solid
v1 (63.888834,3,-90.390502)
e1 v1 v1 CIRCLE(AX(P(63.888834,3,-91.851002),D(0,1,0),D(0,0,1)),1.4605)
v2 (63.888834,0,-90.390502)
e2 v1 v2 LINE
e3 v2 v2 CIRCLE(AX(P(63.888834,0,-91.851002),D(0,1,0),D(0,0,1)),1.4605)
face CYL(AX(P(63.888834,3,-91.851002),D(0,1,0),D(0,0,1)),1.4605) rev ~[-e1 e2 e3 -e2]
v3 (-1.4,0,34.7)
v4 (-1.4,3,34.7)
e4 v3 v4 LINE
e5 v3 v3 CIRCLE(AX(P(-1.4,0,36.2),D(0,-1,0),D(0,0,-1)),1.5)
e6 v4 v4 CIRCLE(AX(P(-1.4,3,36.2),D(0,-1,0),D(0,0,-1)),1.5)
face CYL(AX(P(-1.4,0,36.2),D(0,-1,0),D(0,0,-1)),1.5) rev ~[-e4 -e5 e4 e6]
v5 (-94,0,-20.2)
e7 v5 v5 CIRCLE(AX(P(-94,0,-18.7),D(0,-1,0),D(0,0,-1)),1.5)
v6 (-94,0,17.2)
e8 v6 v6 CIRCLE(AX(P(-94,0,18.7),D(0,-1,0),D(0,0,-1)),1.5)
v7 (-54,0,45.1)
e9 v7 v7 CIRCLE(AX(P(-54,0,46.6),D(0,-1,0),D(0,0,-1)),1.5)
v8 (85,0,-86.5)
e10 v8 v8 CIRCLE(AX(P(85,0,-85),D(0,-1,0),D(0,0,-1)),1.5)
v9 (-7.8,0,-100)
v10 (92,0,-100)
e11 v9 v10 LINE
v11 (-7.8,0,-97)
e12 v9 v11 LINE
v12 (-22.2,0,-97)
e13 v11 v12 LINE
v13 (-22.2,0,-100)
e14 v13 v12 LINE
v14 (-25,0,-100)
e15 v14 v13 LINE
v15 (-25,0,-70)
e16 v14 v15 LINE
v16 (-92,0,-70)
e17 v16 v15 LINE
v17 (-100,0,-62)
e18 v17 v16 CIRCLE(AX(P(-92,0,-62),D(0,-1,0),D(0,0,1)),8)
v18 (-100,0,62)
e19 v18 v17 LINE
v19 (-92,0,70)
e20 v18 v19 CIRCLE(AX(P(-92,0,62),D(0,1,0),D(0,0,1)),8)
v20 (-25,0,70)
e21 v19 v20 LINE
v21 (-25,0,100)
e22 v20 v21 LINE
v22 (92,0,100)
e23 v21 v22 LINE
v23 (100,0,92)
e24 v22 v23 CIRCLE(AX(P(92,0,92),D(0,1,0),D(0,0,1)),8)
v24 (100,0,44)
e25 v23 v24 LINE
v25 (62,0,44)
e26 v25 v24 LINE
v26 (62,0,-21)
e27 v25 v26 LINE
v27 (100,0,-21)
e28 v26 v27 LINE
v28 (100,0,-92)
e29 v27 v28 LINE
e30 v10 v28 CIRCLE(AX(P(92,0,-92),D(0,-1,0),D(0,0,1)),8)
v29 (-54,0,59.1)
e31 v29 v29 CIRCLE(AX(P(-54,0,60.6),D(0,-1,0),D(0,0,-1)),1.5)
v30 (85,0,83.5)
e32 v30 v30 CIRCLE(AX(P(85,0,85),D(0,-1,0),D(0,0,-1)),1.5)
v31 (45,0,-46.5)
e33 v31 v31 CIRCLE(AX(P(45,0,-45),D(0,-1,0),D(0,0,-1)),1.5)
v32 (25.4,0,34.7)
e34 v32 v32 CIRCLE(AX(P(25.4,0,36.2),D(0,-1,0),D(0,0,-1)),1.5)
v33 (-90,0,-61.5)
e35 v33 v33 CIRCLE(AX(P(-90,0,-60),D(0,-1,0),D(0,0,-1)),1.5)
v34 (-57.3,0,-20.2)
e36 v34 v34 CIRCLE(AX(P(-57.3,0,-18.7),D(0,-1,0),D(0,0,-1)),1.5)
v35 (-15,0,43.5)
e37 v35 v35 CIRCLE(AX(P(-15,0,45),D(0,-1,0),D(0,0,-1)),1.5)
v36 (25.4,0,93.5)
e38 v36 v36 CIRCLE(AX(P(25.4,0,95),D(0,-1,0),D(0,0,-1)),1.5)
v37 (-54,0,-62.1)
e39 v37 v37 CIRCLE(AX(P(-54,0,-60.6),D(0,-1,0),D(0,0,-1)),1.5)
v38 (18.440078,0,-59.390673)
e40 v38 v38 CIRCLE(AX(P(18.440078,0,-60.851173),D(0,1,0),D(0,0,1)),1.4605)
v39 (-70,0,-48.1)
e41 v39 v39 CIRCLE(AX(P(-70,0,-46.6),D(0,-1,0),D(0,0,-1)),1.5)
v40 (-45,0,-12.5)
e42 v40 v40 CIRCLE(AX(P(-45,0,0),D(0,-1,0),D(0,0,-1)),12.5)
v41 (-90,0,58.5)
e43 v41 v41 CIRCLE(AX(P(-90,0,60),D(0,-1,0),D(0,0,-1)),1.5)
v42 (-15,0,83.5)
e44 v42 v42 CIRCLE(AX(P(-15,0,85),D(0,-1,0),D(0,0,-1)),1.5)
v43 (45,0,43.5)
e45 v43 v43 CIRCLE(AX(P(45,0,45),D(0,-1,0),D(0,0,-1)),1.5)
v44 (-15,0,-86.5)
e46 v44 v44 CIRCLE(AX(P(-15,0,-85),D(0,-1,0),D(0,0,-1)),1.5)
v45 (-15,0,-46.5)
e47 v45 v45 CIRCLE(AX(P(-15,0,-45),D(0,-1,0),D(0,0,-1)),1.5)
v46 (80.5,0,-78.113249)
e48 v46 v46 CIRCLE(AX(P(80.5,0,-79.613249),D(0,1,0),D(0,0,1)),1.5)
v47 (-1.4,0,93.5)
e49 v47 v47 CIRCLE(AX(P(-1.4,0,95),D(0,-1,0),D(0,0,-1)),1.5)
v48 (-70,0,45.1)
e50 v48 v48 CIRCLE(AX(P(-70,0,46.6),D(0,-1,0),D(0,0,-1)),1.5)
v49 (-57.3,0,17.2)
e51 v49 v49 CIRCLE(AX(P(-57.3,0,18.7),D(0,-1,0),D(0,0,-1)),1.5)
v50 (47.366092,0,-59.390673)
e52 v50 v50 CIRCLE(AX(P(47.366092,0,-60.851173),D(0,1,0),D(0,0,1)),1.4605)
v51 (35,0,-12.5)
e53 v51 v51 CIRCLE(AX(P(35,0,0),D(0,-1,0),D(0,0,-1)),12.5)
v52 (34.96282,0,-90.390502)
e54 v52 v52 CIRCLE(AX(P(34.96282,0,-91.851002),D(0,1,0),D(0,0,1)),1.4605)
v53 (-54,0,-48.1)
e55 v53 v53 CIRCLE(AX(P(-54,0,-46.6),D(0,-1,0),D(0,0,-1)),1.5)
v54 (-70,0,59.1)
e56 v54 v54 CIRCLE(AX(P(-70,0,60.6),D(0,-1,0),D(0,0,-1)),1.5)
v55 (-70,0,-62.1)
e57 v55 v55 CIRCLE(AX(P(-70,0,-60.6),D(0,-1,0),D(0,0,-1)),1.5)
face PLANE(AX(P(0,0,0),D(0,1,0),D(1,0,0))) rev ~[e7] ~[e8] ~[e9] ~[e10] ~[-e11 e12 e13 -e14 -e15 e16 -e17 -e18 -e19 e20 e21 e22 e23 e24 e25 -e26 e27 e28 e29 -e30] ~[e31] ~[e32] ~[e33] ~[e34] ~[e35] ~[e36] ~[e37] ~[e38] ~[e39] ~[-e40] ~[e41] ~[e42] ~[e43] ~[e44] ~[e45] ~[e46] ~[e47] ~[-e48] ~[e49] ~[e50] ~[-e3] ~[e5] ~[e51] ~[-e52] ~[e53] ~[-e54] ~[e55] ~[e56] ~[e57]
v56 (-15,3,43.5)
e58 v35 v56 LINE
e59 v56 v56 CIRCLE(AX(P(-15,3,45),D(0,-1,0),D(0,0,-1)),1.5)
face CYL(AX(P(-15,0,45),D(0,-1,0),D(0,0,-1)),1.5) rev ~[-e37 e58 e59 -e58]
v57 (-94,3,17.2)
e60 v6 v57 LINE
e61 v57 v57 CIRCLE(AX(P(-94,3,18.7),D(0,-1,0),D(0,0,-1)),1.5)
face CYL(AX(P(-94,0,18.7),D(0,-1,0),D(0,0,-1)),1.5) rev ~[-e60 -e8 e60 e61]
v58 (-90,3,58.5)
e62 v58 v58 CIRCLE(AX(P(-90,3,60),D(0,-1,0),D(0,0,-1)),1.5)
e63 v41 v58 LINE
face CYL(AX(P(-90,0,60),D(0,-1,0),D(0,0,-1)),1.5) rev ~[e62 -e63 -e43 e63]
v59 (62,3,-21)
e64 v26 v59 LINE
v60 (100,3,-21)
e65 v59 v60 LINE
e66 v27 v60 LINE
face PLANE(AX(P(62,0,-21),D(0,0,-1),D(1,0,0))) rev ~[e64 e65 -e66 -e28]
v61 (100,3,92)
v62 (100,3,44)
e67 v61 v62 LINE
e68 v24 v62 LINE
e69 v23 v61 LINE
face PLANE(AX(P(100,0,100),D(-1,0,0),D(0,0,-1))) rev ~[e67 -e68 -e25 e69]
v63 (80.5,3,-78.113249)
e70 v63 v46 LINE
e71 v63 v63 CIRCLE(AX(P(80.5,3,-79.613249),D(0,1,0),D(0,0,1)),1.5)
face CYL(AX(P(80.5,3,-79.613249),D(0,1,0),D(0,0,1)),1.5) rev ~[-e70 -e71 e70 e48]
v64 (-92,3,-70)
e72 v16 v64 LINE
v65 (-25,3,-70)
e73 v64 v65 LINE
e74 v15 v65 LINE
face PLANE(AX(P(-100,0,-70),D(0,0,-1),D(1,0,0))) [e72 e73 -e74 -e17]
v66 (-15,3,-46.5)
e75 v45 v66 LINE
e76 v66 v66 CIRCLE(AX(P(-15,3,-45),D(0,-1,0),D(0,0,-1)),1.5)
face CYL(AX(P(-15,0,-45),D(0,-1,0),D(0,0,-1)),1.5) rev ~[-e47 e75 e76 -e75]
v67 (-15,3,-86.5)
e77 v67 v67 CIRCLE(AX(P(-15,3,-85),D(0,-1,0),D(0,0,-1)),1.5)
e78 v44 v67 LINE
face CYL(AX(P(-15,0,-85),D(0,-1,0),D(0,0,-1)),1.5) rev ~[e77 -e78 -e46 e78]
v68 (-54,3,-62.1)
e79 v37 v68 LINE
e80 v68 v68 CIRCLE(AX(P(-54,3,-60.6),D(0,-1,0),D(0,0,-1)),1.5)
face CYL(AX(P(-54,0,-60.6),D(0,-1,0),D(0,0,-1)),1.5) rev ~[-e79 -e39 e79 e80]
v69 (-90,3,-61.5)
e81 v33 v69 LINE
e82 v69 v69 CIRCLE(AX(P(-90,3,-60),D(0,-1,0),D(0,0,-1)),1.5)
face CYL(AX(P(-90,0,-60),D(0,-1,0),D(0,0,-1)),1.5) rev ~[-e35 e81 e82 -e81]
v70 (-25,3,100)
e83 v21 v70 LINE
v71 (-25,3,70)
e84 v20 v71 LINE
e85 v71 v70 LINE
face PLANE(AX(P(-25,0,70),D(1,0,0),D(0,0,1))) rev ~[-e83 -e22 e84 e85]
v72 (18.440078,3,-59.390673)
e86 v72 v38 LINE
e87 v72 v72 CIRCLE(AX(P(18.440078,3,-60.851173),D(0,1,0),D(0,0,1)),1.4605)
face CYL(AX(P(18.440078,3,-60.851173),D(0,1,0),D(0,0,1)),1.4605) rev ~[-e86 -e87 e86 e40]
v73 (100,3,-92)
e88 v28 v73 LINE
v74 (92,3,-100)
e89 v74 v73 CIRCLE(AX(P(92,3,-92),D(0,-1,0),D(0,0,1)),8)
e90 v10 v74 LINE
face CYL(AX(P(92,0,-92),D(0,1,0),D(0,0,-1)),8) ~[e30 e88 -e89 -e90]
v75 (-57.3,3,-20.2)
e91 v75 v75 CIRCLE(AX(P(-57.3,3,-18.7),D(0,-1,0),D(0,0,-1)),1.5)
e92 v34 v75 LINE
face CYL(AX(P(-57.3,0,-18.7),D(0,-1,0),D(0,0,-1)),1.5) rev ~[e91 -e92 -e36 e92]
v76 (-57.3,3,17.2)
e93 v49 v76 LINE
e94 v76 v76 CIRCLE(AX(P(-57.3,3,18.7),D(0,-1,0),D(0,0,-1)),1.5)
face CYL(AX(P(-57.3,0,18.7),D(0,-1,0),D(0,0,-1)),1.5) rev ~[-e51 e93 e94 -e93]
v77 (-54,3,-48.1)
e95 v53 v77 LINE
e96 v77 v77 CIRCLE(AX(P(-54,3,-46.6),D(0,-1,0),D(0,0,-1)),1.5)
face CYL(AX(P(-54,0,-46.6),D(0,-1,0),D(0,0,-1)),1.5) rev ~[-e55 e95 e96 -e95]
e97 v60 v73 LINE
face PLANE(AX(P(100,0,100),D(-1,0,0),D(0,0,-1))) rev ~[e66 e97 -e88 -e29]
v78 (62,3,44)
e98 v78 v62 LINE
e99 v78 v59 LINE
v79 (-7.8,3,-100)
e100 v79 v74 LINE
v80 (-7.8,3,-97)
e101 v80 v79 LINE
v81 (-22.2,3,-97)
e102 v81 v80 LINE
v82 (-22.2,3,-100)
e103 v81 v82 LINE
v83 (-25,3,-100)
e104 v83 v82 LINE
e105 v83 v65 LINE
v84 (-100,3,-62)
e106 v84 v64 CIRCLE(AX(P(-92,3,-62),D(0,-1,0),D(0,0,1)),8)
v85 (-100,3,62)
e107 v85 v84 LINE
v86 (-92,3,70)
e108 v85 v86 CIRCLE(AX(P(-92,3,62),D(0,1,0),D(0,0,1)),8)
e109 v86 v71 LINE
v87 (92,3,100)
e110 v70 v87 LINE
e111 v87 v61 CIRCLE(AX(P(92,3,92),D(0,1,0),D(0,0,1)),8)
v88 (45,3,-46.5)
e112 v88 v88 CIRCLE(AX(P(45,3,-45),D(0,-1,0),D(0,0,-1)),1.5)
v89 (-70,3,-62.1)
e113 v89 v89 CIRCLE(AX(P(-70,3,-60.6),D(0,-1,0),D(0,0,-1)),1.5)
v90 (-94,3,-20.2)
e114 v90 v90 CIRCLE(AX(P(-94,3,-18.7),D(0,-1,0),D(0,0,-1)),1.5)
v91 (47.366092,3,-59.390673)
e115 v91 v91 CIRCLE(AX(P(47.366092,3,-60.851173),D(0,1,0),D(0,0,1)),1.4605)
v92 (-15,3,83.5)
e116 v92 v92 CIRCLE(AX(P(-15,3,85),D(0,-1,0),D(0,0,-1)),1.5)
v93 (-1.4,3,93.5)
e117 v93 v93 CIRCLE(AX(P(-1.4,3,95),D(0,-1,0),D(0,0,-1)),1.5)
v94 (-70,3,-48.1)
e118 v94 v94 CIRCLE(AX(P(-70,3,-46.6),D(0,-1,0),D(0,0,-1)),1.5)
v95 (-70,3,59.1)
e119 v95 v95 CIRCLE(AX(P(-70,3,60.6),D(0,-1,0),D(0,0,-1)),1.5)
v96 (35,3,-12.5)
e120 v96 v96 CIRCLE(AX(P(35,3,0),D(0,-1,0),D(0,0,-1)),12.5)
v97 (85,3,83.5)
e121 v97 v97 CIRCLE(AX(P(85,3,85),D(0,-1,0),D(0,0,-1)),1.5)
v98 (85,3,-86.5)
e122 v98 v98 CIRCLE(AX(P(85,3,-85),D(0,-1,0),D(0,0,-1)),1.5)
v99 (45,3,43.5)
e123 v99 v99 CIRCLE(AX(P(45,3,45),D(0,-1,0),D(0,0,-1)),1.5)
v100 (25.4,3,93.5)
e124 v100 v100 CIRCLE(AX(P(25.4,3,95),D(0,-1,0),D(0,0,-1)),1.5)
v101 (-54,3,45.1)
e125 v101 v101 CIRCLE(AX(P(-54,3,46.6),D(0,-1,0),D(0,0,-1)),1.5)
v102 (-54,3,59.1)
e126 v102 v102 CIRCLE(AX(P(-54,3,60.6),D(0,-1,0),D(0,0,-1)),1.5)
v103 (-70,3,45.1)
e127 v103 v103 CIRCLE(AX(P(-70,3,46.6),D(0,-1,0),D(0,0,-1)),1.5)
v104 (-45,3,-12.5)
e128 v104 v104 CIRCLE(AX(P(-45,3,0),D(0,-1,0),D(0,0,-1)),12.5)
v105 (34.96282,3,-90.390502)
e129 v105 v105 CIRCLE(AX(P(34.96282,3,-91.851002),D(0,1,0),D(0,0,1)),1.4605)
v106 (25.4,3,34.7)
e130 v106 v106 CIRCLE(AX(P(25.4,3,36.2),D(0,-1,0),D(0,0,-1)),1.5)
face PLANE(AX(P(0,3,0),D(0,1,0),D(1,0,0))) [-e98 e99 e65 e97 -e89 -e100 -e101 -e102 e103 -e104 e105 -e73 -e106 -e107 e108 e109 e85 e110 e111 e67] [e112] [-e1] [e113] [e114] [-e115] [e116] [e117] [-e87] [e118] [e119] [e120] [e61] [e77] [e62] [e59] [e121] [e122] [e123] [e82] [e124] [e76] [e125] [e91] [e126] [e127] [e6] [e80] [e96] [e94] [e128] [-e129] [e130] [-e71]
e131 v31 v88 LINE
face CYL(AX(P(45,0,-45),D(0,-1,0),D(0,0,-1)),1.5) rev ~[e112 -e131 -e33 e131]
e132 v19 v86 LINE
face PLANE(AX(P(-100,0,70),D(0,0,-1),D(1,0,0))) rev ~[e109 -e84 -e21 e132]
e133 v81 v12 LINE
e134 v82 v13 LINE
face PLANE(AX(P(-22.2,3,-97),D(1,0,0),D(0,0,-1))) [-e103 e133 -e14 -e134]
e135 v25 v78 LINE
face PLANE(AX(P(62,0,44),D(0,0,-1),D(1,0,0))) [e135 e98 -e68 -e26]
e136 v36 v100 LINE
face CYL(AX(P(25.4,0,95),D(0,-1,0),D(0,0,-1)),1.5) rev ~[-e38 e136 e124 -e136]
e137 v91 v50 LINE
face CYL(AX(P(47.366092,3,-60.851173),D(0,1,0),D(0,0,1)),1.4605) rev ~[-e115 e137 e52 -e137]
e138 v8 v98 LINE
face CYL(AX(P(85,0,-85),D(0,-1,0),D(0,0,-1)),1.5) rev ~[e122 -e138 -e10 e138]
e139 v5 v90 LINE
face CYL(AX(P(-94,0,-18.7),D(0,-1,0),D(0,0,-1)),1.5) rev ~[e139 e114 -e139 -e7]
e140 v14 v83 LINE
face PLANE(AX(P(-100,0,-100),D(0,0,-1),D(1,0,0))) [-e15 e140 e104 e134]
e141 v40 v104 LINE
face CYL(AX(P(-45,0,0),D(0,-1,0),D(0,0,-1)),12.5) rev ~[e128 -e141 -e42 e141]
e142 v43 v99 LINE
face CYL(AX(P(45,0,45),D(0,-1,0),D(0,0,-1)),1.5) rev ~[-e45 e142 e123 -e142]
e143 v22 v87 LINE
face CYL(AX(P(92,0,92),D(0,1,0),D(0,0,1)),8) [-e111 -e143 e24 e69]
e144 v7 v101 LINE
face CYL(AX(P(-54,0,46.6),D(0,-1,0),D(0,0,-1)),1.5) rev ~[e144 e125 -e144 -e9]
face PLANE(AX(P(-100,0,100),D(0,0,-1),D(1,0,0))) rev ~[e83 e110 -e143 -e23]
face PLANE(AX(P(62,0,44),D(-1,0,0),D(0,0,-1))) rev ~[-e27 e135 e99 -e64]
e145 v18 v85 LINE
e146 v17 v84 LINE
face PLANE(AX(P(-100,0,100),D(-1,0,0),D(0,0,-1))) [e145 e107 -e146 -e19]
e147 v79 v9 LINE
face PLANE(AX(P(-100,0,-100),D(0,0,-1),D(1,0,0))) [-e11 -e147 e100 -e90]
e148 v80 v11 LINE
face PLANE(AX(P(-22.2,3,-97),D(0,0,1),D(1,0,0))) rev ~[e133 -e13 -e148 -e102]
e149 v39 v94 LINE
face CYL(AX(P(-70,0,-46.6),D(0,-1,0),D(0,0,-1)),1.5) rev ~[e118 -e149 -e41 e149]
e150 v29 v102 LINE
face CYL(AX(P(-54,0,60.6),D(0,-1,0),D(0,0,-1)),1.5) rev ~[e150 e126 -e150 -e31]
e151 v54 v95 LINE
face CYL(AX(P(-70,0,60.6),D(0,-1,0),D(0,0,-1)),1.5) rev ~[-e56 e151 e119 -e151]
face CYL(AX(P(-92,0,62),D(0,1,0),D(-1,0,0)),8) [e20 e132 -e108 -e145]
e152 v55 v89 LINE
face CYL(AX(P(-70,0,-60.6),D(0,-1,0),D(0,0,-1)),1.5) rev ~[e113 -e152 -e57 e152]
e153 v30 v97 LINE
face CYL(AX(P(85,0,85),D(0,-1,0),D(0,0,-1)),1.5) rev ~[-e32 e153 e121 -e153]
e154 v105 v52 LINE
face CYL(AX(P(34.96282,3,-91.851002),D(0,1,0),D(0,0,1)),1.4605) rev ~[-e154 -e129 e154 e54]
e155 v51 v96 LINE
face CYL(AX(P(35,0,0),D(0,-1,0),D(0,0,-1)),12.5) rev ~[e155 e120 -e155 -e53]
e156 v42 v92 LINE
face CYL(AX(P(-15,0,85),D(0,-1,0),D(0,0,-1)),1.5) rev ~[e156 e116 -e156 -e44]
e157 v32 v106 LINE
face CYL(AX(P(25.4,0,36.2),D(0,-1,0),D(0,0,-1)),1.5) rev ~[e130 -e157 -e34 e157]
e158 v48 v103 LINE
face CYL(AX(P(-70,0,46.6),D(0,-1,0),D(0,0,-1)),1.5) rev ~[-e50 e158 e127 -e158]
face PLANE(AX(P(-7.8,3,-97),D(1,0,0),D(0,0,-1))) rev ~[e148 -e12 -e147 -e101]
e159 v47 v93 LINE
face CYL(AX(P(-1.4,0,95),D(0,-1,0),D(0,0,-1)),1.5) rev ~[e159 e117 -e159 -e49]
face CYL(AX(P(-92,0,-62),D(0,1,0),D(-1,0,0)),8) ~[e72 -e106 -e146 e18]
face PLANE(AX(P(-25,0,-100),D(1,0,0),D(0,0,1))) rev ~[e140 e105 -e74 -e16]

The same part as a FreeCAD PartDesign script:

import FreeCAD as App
import Part
import Sketcher


def edges_at(feature, points):
    """Names of the edges that pass closest to the given points."""
    edges = feature.Shape.Edges
    near = lambda p: min(range(len(edges)), key=lambda i: edges[i].distToShape(Part.Vertex(*p))[0])
    return sorted({f"Edge{near(p) + 1}" for p in points})

doc = App.newDocument("Part")
body = doc.addObject("PartDesign::Body", "Body")

sketch1 = body.newObject("Sketcher::SketchObject", "Sketch")
sketch1.AttachmentSupport = (doc.getObject("XZ_Plane"), [""])
sketch1.MapMode = "FlatFace"
sketch1.addGeometry(Part.LineSegment(App.Vector(-100, -100, 0), App.Vector(-100, 100, 0)), False)
sketch1.addGeometry(Part.LineSegment(App.Vector(-100, 100, 0), App.Vector(100, 100, 0)), False)
sketch1.addGeometry(Part.LineSegment(App.Vector(100, 100, 0), App.Vector(100, -100, 0)), False)
sketch1.addGeometry(Part.LineSegment(App.Vector(100, -100, 0), App.Vector(-100, -100, 0)), False)
sketch1.addConstraint(Sketcher.Constraint("Coincident", 0, 2, 1, 1))
sketch1.addConstraint(Sketcher.Constraint("Coincident", 1, 2, 2, 1))
sketch1.addConstraint(Sketcher.Constraint("Coincident", 2, 2, 3, 1))
sketch1.addConstraint(Sketcher.Constraint("Coincident", 3, 2, 0, 1))
sketch1.addConstraint(Sketcher.Constraint("Vertical", 0))
sketch1.addConstraint(Sketcher.Constraint("Horizontal", 1))
sketch1.addConstraint(Sketcher.Constraint("Vertical", 2))
sketch1.addConstraint(Sketcher.Constraint("Horizontal", 3))
sketch1.addConstraint(Sketcher.Constraint("Symmetric", 0, 2, 2, 2, -1, 1))
sketch1.addConstraint(Sketcher.Constraint("Equal", 3, 0))
sketch1.addConstraint(Sketcher.Constraint("DistanceX", 1, 1, 1, 2, 200.0))
pad1 = body.newObject("PartDesign::Pad", "Pad")
pad1.Profile = sketch1
pad1.Length = 3
pad1.Reversed = True

sketch2 = body.newObject("Sketcher::SketchObject", "Sketch001")
sketch2.AttachmentSupport = (doc.getObject("XZ_Plane"), [""])
sketch2.MapMode = "FlatFace"
sketch2.addGeometry(Part.Circle(App.Vector(-15, 45, 0), App.Vector(0, 0, 1), 1.5), False)
sketch2.addConstraint(Sketcher.Constraint("Diameter", 0, 3.0))
sketch2.addConstraint(Sketcher.Constraint("DistanceX", 0, 3, -1, 1, 15.0))
sketch2.addConstraint(Sketcher.Constraint("DistanceY", -1, 1, 0, 3, 45.0))
pocket1 = body.newObject("PartDesign::Pocket", "Pocket")
pocket1.Profile = sketch2
pocket1.Type = "UpToFirst"

sketch3 = body.newObject("Sketcher::SketchObject", "Sketch002")
sketch3.AttachmentSupport = (doc.getObject("XZ_Plane"), [""])
sketch3.MapMode = "FlatFace"
sketch3.addGeometry(Part.Circle(App.Vector(45, 45, 0), App.Vector(0, 0, 1), 1.5), False)
sketch3.addConstraint(Sketcher.Constraint("Diameter", 0, 3.0))
sketch3.addConstraint(Sketcher.Constraint("DistanceX", -1, 1, 0, 3, 45.0))
sketch3.addConstraint(Sketcher.Constraint("DistanceY", -1, 1, 0, 3, 45.0))
pocket2 = body.newObject("PartDesign::Pocket", "Pocket001")
pocket2.Profile = sketch3
pocket2.Type = "UpToFirst"

sketch4 = body.newObject("Sketcher::SketchObject", "Sketch003")
sketch4.AttachmentSupport = (doc.getObject("XZ_Plane"), [""])
sketch4.MapMode = "FlatFace"
sketch4.addGeometry(Part.Circle(App.Vector(45, -45, 0), App.Vector(0, 0, 1), 1.5), False)
sketch4.addConstraint(Sketcher.Constraint("Diameter", 0, 3.0))
sketch4.addConstraint(Sketcher.Constraint("DistanceX", -1, 1, 0, 3, 45.0))
sketch4.addConstraint(Sketcher.Constraint("DistanceY", 0, 3, -1, 1, 45.0))
pocket3 = body.newObject("PartDesign::Pocket", "Pocket002")
pocket3.Profile = sketch4
pocket3.Type = "UpToFirst"

sketch5 = body.newObject("Sketcher::SketchObject", "Sketch004")
sketch5.AttachmentSupport = (doc.getObject("XZ_Plane"), [""])
sketch5.MapMode = "FlatFace"
sketch5.addGeometry(Part.Circle(App.Vector(-15, -45, 0), App.Vector(0, 0, 1), 1.5), False)
sketch5.addConstraint(Sketcher.Constraint("Diameter", 0, 3.0))
sketch5.addConstraint(Sketcher.Constraint("DistanceX", 0, 3, -1, 1, 15.0))
sketch5.addConstraint(Sketcher.Constraint("DistanceY", 0, 3, -1, 1, 45.0))
pocket4 = body.newObject("PartDesign::Pocket", "Pocket003")
pocket4.Profile = sketch5
pocket4.Type = "UpToFirst"

sketch6 = body.newObject("Sketcher::SketchObject", "Sketch005")
sketch6.AttachmentSupport = (doc.getObject("XZ_Plane"), [""])
sketch6.MapMode = "FlatFace"
sketch6.addGeometry(Part.LineSegment(App.Vector(-100, -70, 0), App.Vector(-100, -100, 0)), False)
sketch6.addGeometry(Part.LineSegment(App.Vector(-100, -100, 0), App.Vector(-25, -100, 0)), False)
sketch6.addGeometry(Part.LineSegment(App.Vector(-25, -100, 0), App.Vector(-25, -70, 0)), False)
sketch6.addGeometry(Part.LineSegment(App.Vector(-25, -70, 0), App.Vector(-100, -70, 0)), False)
sketch6.addConstraint(Sketcher.Constraint("Coincident", 0, 2, 1, 1))
sketch6.addConstraint(Sketcher.Constraint("Coincident", 1, 2, 2, 1))
sketch6.addConstraint(Sketcher.Constraint("Coincident", 2, 2, 3, 1))
sketch6.addConstraint(Sketcher.Constraint("Coincident", 3, 2, 0, 1))
sketch6.addConstraint(Sketcher.Constraint("Vertical", 0))
sketch6.addConstraint(Sketcher.Constraint("Horizontal", 1))
sketch6.addConstraint(Sketcher.Constraint("Vertical", 2))
sketch6.addConstraint(Sketcher.Constraint("Horizontal", 3))
sketch6.addConstraint(Sketcher.Constraint("DistanceX", 1, 1, 1, 2, 75.0))
sketch6.addConstraint(Sketcher.Constraint("DistanceY", 0, 2, 0, 1, 30.0))
sketch6.addConstraint(Sketcher.Constraint("DistanceX", 0, 2, -1, 1, 100.0))
sketch6.addConstraint(Sketcher.Constraint("DistanceY", 0, 2, -1, 1, 100.0))
pocket5 = body.newObject("PartDesign::Pocket", "Pocket004")
pocket5.Profile = sketch6
pocket5.Type = "UpToFirst"

sketch7 = body.newObject("Sketcher::SketchObject", "Sketch006")
sketch7.AttachmentSupport = (doc.getObject("XZ_Plane"), [""])
sketch7.MapMode = "FlatFace"
sketch7.addGeometry(Part.LineSegment(App.Vector(-100, 100, 0), App.Vector(-100, 70, 0)), False)
sketch7.addGeometry(Part.LineSegment(App.Vector(-100, 70, 0), App.Vector(-25, 70, 0)), False)
sketch7.addGeometry(Part.LineSegment(App.Vector(-25, 70, 0), App.Vector(-25, 100, 0)), False)
sketch7.addGeometry(Part.LineSegment(App.Vector(-25, 100, 0), App.Vector(-100, 100, 0)), False)
sketch7.addConstraint(Sketcher.Constraint("Coincident", 0, 2, 1, 1))
sketch7.addConstraint(Sketcher.Constraint("Coincident", 1, 2, 2, 1))
sketch7.addConstraint(Sketcher.Constraint("Coincident", 2, 2, 3, 1))
sketch7.addConstraint(Sketcher.Constraint("Coincident", 3, 2, 0, 1))
sketch7.addConstraint(Sketcher.Constraint("Vertical", 0))
sketch7.addConstraint(Sketcher.Constraint("Horizontal", 1))
sketch7.addConstraint(Sketcher.Constraint("Vertical", 2))
sketch7.addConstraint(Sketcher.Constraint("Horizontal", 3))
sketch7.addConstraint(Sketcher.Constraint("DistanceX", 1, 1, 1, 2, 75.0))
sketch7.addConstraint(Sketcher.Constraint("DistanceY", 0, 2, 0, 1, 30.0))
sketch7.addConstraint(Sketcher.Constraint("DistanceX", 0, 2, -1, 1, 100.0))
sketch7.addConstraint(Sketcher.Constraint("DistanceY", -1, 1, 0, 2, 70.0))
pocket6 = body.newObject("PartDesign::Pocket", "Pocket005")
pocket6.Profile = sketch7
pocket6.Type = "UpToFirst"

sketch8 = body.newObject("Sketcher::SketchObject", "Sketch007")
sketch8.AttachmentSupport = (doc.getObject("XZ_Plane"), [""])
sketch8.MapMode = "FlatFace"
sketch8.addGeometry(Part.LineSegment(App.Vector(-100, -70, 0), App.Vector(-100, -100, 0)), False)
sketch8.addGeometry(Part.LineSegment(App.Vector(-100, -100, 0), App.Vector(-25, -100, 0)), False)
sketch8.addGeometry(Part.LineSegment(App.Vector(-25, -100, 0), App.Vector(-25, -70, 0)), False)
sketch8.addGeometry(Part.LineSegment(App.Vector(-25, -70, 0), App.Vector(-100, -70, 0)), False)
sketch8.addGeometry(Part.LineSegment(App.Vector(-100, 100, 0), App.Vector(-100, 70, 0)), False)
sketch8.addGeometry(Part.LineSegment(App.Vector(-100, 70, 0), App.Vector(-25, 70, 0)), False)
sketch8.addGeometry(Part.LineSegment(App.Vector(-25, 70, 0), App.Vector(-25, 100, 0)), False)
sketch8.addGeometry(Part.LineSegment(App.Vector(-25, 100, 0), App.Vector(-100, 100, 0)), False)
sketch8.addConstraint(Sketcher.Constraint("Coincident", 0, 2, 1, 1))
sketch8.addConstraint(Sketcher.Constraint("Coincident", 1, 2, 2, 1))
sketch8.addConstraint(Sketcher.Constraint("Coincident", 2, 2, 3, 1))
sketch8.addConstraint(Sketcher.Constraint("Coincident", 3, 2, 0, 1))
sketch8.addConstraint(Sketcher.Constraint("Coincident", 4, 2, 5, 1))
sketch8.addConstraint(Sketcher.Constraint("Coincident", 5, 2, 6, 1))
sketch8.addConstraint(Sketcher.Constraint("Coincident", 6, 2, 7, 1))
sketch8.addConstraint(Sketcher.Constraint("Coincident", 7, 2, 4, 1))
sketch8.addConstraint(Sketcher.Constraint("Vertical", 0))
sketch8.addConstraint(Sketcher.Constraint("Horizontal", 1))
sketch8.addConstraint(Sketcher.Constraint("Vertical", 2))
sketch8.addConstraint(Sketcher.Constraint("Horizontal", 3))
sketch8.addConstraint(Sketcher.Constraint("Vertical", 4))
sketch8.addConstraint(Sketcher.Constraint("Horizontal", 5))
sketch8.addConstraint(Sketcher.Constraint("Vertical", 6))
sketch8.addConstraint(Sketcher.Constraint("Horizontal", 7))
sketch8.addConstraint(Sketcher.Constraint("Symmetric", 3, 2, 4, 2, -1))
sketch8.addConstraint(Sketcher.Constraint("Symmetric", 1, 2, 6, 2, -1))
sketch8.addConstraint(Sketcher.Constraint("DistanceX", 1, 1, 1, 2, 75.0))
sketch8.addConstraint(Sketcher.Constraint("DistanceY", 0, 2, 0, 1, 30.0))
sketch8.addConstraint(Sketcher.Constraint("DistanceX", 0, 2, -1, 1, 100.0))
sketch8.addConstraint(Sketcher.Constraint("DistanceY", 0, 2, -1, 1, 100.0))
pocket7 = body.newObject("PartDesign::Pocket", "Pocket006")
pocket7.Profile = sketch8
pocket7.Length = 142.453172
pocket7.Reversed = True

sketch9 = body.newObject("Sketcher::SketchObject", "Sketch008")
sketch9.AttachmentSupport = (doc.getObject("XZ_Plane"), [""])
sketch9.MapMode = "FlatFace"
sketch9.addGeometry(Part.Circle(App.Vector(-70, -60.6, 0), App.Vector(0, 0, 1), 1.5), False)
sketch9.addConstraint(Sketcher.Constraint("Diameter", 0, 3.0))
sketch9.addConstraint(Sketcher.Constraint("DistanceX", 0, 3, -1, 1, 70.0))
sketch9.addConstraint(Sketcher.Constraint("DistanceY", 0, 3, -1, 1, 60.6))
pocket8 = body.newObject("PartDesign::Pocket", "Pocket007")
pocket8.Profile = sketch9
pocket8.Type = "UpToFirst"

sketch10 = body.newObject("Sketcher::SketchObject", "Sketch009")
sketch10.AttachmentSupport = (doc.getObject("XZ_Plane"), [""])
sketch10.MapMode = "FlatFace"
sketch10.addGeometry(Part.Circle(App.Vector(-70, -46.6, 0), App.Vector(0, 0, 1), 1.5), False)
sketch10.addConstraint(Sketcher.Constraint("Diameter", 0, 3.0))
sketch10.addConstraint(Sketcher.Constraint("DistanceX", 0, 3, -1, 1, 70.0))
sketch10.addConstraint(Sketcher.Constraint("DistanceY", 0, 3, -1, 1, 46.6))
pocket9 = body.newObject("PartDesign::Pocket", "Pocket008")
pocket9.Profile = sketch10
pocket9.Type = "UpToFirst"

sketch11 = body.newObject("Sketcher::SketchObject", "Sketch010")
sketch11.AttachmentSupport = (doc.getObject("XZ_Plane"), [""])
sketch11.MapMode = "FlatFace"
sketch11.addGeometry(Part.Circle(App.Vector(-54, -46.6, 0), App.Vector(0, 0, 1), 1.5), False)
sketch11.addConstraint(Sketcher.Constraint("Diameter", 0, 3.0))
sketch11.addConstraint(Sketcher.Constraint("DistanceX", 0, 3, -1, 1, 54.0))
sketch11.addConstraint(Sketcher.Constraint("DistanceY", 0, 3, -1, 1, 46.6))
pocket10 = body.newObject("PartDesign::Pocket", "Pocket009")
pocket10.Profile = sketch11
pocket10.Type = "UpToFirst"

sketch12 = body.newObject("Sketcher::SketchObject", "Sketch011")
sketch12.AttachmentSupport = (doc.getObject("XZ_Plane"), [""])
sketch12.MapMode = "FlatFace"
sketch12.addGeometry(Part.Circle(App.Vector(-54, -60.6, 0), App.Vector(0, 0, 1), 1.5), False)
sketch12.addConstraint(Sketcher.Constraint("Diameter", 0, 3.0))
sketch12.addConstraint(Sketcher.Constraint("DistanceX", 0, 3, -1, 1, 54.0))
sketch12.addConstraint(Sketcher.Constraint("DistanceY", 0, 3, -1, 1, 60.6))
pocket11 = body.newObject("PartDesign::Pocket", "Pocket010")
pocket11.Profile = sketch12
pocket11.Type = "UpToFirst"

sketch13 = body.newObject("Sketcher::SketchObject", "Sketch012")
sketch13.AttachmentSupport = (doc.getObject("XZ_Plane"), [""])
sketch13.MapMode = "FlatFace"
sketch13.addGeometry(Part.Circle(App.Vector(-70, 60.6, 0), App.Vector(0, 0, 1), 1.5), False)
sketch13.addConstraint(Sketcher.Constraint("Diameter", 0, 3.0))
sketch13.addConstraint(Sketcher.Constraint("DistanceX", 0, 3, -1, 1, 70.0))
sketch13.addConstraint(Sketcher.Constraint("DistanceY", -1, 1, 0, 3, 60.6))
pocket12 = body.newObject("PartDesign::Pocket", "Pocket011")
pocket12.Profile = sketch13
pocket12.Type = "UpToFirst"

sketch14 = body.newObject("Sketcher::SketchObject", "Sketch013")
sketch14.AttachmentSupport = (doc.getObject("XZ_Plane"), [""])
sketch14.MapMode = "FlatFace"
sketch14.addGeometry(Part.Circle(App.Vector(-54, 60.6, 0), App.Vector(0, 0, 1), 1.5), False)
sketch14.addConstraint(Sketcher.Constraint("Diameter", 0, 3.0))
sketch14.addConstraint(Sketcher.Constraint("DistanceX", 0, 3, -1, 1, 54.0))
sketch14.addConstraint(Sketcher.Constraint("DistanceY", -1, 1, 0, 3, 60.6))
pocket13 = body.newObject("PartDesign::Pocket", "Pocket012")
pocket13.Profile = sketch14
pocket13.Type = "UpToFirst"

sketch15 = body.newObject("Sketcher::SketchObject", "Sketch014")
sketch15.AttachmentSupport = (doc.getObject("XZ_Plane"), [""])
sketch15.MapMode = "FlatFace"
sketch15.addGeometry(Part.Circle(App.Vector(-70, 46.6, 0), App.Vector(0, 0, 1), 1.5), False)
sketch15.addConstraint(Sketcher.Constraint("Diameter", 0, 3.0))
sketch15.addConstraint(Sketcher.Constraint("DistanceX", 0, 3, -1, 1, 70.0))
sketch15.addConstraint(Sketcher.Constraint("DistanceY", -1, 1, 0, 3, 46.6))
pocket14 = body.newObject("PartDesign::Pocket", "Pocket013")
pocket14.Profile = sketch15
pocket14.Type = "UpToFirst"

sketch16 = body.newObject("Sketcher::SketchObject", "Sketch015")
sketch16.AttachmentSupport = (doc.getObject("XZ_Plane"), [""])
sketch16.MapMode = "FlatFace"
sketch16.addGeometry(Part.Circle(App.Vector(-54, 46.6, 0), App.Vector(0, 0, 1), 1.5), False)
sketch16.addConstraint(Sketcher.Constraint("Diameter", 0, 3.0))
sketch16.addConstraint(Sketcher.Constraint("DistanceX", 0, 3, -1, 1, 54.0))
sketch16.addConstraint(Sketcher.Constraint("DistanceY", -1, 1, 0, 3, 46.6))
pocket15 = body.newObject("PartDesign::Pocket", "Pocket014")
pocket15.Profile = sketch16
pocket15.Type = "UpToFirst"
doc.recompute()

fillet = body.newObject("PartDesign::Fillet", "Fillet")
fillet.Base = (pocket15, edges_at(pocket15, [
    (-100, 1.5, -70),
    (-100, 1.5, 70),
    (100, 1.5, 100),
    (100, 1.5, -100),
]))
fillet.Radius = 8

sketch17 = body.newObject("Sketcher::SketchObject", "Sketch016")
sketch17.AttachmentSupport = (doc.getObject("XZ_Plane"), [""])
sketch17.MapMode = "FlatFace"
sketch17.addGeometry(Part.Circle(App.Vector(-90, 60, 0), App.Vector(0, 0, 1), 1.5), False)
sketch17.addConstraint(Sketcher.Constraint("Diameter", 0, 3.0))
sketch17.addConstraint(Sketcher.Constraint("DistanceX", 0, 3, -1, 1, 90.0))
sketch17.addConstraint(Sketcher.Constraint("DistanceY", -1, 1, 0, 3, 60.0))
pocket16 = body.newObject("PartDesign::Pocket", "Pocket015")
pocket16.Profile = sketch17
pocket16.Type = "UpToFirst"

sketch18 = body.newObject("Sketcher::SketchObject", "Sketch017")
sketch18.AttachmentSupport = (doc.getObject("XZ_Plane"), [""])
sketch18.MapMode = "FlatFace"
sketch18.addGeometry(Part.Circle(App.Vector(-90, -60, 0), App.Vector(0, 0, 1), 1.5), False)
sketch18.addConstraint(Sketcher.Constraint("Diameter", 0, 3.0))
sketch18.addConstraint(Sketcher.Constraint("DistanceX", 0, 3, -1, 1, 90.0))
sketch18.addConstraint(Sketcher.Constraint("DistanceY", 0, 3, -1, 1, 60.0))
pocket17 = body.newObject("PartDesign::Pocket", "Pocket016")
pocket17.Profile = sketch18
pocket17.Type = "UpToFirst"

sketch19 = body.newObject("Sketcher::SketchObject", "Sketch018")
sketch19.AttachmentSupport = (doc.getObject("XZ_Plane"), [""])
sketch19.MapMode = "FlatFace"
sketch19.addGeometry(Part.Circle(App.Vector(-15, -85, 0), App.Vector(0, 0, 1), 1.5), False)
sketch19.addConstraint(Sketcher.Constraint("Diameter", 0, 3.0))
sketch19.addConstraint(Sketcher.Constraint("DistanceX", 0, 3, -1, 1, 15.0))
sketch19.addConstraint(Sketcher.Constraint("DistanceY", 0, 3, -1, 1, 85.0))
pocket18 = body.newObject("PartDesign::Pocket", "Pocket017")
pocket18.Profile = sketch19
pocket18.Type = "UpToFirst"

sketch20 = body.newObject("Sketcher::SketchObject", "Sketch019")
sketch20.AttachmentSupport = (doc.getObject("XZ_Plane"), [""])
sketch20.MapMode = "FlatFace"
sketch20.addGeometry(Part.Circle(App.Vector(85, -85, 0), App.Vector(0, 0, 1), 1.5), False)
sketch20.addConstraint(Sketcher.Constraint("Diameter", 0, 3.0))
sketch20.addConstraint(Sketcher.Constraint("DistanceX", -1, 1, 0, 3, 85.0))
sketch20.addConstraint(Sketcher.Constraint("DistanceY", 0, 3, -1, 1, 85.0))
pocket19 = body.newObject("PartDesign::Pocket", "Pocket018")
pocket19.Profile = sketch20
pocket19.Type = "UpToFirst"

sketch21 = body.newObject("Sketcher::SketchObject", "Sketch020")
sketch21.AttachmentSupport = (doc.getObject("XZ_Plane"), [""])
sketch21.MapMode = "FlatFace"
sketch21.addGeometry(Part.Circle(App.Vector(85, 85, 0), App.Vector(0, 0, 1), 1.5), False)
sketch21.addConstraint(Sketcher.Constraint("Diameter", 0, 3.0))
sketch21.addConstraint(Sketcher.Constraint("DistanceX", -1, 1, 0, 3, 85.0))
sketch21.addConstraint(Sketcher.Constraint("DistanceY", -1, 1, 0, 3, 85.0))
pocket20 = body.newObject("PartDesign::Pocket", "Pocket019")
pocket20.Profile = sketch21
pocket20.Type = "UpToFirst"

sketch22 = body.newObject("Sketcher::SketchObject", "Sketch021")
sketch22.AttachmentSupport = (doc.getObject("XZ_Plane"), [""])
sketch22.MapMode = "FlatFace"
sketch22.addGeometry(Part.Circle(App.Vector(-15, 85, 0), App.Vector(0, 0, 1), 1.5), False)
sketch22.addConstraint(Sketcher.Constraint("Diameter", 0, 3.0))
sketch22.addConstraint(Sketcher.Constraint("DistanceX", 0, 3, -1, 1, 15.0))
sketch22.addConstraint(Sketcher.Constraint("DistanceY", -1, 1, 0, 3, 85.0))
pocket21 = body.newObject("PartDesign::Pocket", "Pocket020")
pocket21.Profile = sketch22
pocket21.Type = "UpToFirst"

sketch23 = body.newObject("Sketcher::SketchObject", "Sketch022")
sketch23.AttachmentSupport = (doc.getObject("XZ_Plane"), [""])
sketch23.MapMode = "FlatFace"
sketch23.addGeometry(Part.LineSegment(App.Vector(62, -21, 0), App.Vector(62, 44, 0)), False)
sketch23.addGeometry(Part.LineSegment(App.Vector(62, 44, 0), App.Vector(100, 44, 0)), False)
sketch23.addGeometry(Part.LineSegment(App.Vector(100, 44, 0), App.Vector(100, -21, 0)), False)
sketch23.addGeometry(Part.LineSegment(App.Vector(100, -21, 0), App.Vector(62, -21, 0)), False)
sketch23.addConstraint(Sketcher.Constraint("Coincident", 0, 2, 1, 1))
sketch23.addConstraint(Sketcher.Constraint("Coincident", 1, 2, 2, 1))
sketch23.addConstraint(Sketcher.Constraint("Coincident", 2, 2, 3, 1))
sketch23.addConstraint(Sketcher.Constraint("Coincident", 3, 2, 0, 1))
sketch23.addConstraint(Sketcher.Constraint("Vertical", 0))
sketch23.addConstraint(Sketcher.Constraint("Horizontal", 1))
sketch23.addConstraint(Sketcher.Constraint("Vertical", 2))
sketch23.addConstraint(Sketcher.Constraint("Horizontal", 3))
sketch23.addConstraint(Sketcher.Constraint("DistanceX", 1, 1, 1, 2, 38.0))
sketch23.addConstraint(Sketcher.Constraint("DistanceY", 0, 1, 0, 2, 65.0))
sketch23.addConstraint(Sketcher.Constraint("DistanceX", -1, 1, 0, 2, 62.0))
sketch23.addConstraint(Sketcher.Constraint("DistanceY", -1, 1, 0, 2, 44.0))
pocket22 = body.newObject("PartDesign::Pocket", "Pocket021")
pocket22.Profile = sketch23
pocket22.Type = "UpToFirst"

sketch24 = body.newObject("Sketcher::SketchObject", "Sketch023")
sketch24.AttachmentSupport = (doc.getObject("XZ_Plane"), [""])
sketch24.MapMode = "FlatFace"
sketch24.addGeometry(Part.Circle(App.Vector(35, 0, 0), App.Vector(0, 0, 1), 12.5), False)
sketch24.addConstraint(Sketcher.Constraint("PointOnObject", 0, 3, -1))
sketch24.addConstraint(Sketcher.Constraint("Diameter", 0, 25.0))
sketch24.addConstraint(Sketcher.Constraint("DistanceX", -1, 1, 0, 3, 35.0))
pocket23 = body.newObject("PartDesign::Pocket", "Pocket022")
pocket23.Profile = sketch24
pocket23.Type = "UpToFirst"

sketch25 = body.newObject("Sketcher::SketchObject", "Sketch024")
sketch25.AttachmentSupport = (doc.getObject("XZ_Plane"), [""])
sketch25.MapMode = "FlatFace"
sketch25.addGeometry(Part.Circle(App.Vector(-45, 0, 0), App.Vector(0, 0, 1), 12.5), False)
sketch25.addConstraint(Sketcher.Constraint("PointOnObject", 0, 3, -1))
sketch25.addConstraint(Sketcher.Constraint("Diameter", 0, 25.0))
sketch25.addConstraint(Sketcher.Constraint("DistanceX", 0, 3, -1, 1, 45.0))
pocket24 = body.newObject("PartDesign::Pocket", "Pocket023")
pocket24.Profile = sketch25
pocket24.Type = "UpToFirst"

sketch26 = body.newObject("Sketcher::SketchObject", "Sketch025")
sketch26.AttachmentSupport = (doc.getObject("XZ_Plane"), [""])
sketch26.MapMode = "FlatFace"
sketch26.addGeometry(Part.Circle(App.Vector(-94, -18.7, 0), App.Vector(0, 0, 1), 1.5), False)
sketch26.addConstraint(Sketcher.Constraint("Diameter", 0, 3.0))
sketch26.addConstraint(Sketcher.Constraint("DistanceX", 0, 3, -1, 1, 94.0))
sketch26.addConstraint(Sketcher.Constraint("DistanceY", 0, 3, -1, 1, 18.7))
pocket25 = body.newObject("PartDesign::Pocket", "Pocket024")
pocket25.Profile = sketch26
pocket25.Type = "UpToFirst"

sketch27 = body.newObject("Sketcher::SketchObject", "Sketch026")
sketch27.AttachmentSupport = (doc.getObject("XZ_Plane"), [""])
sketch27.MapMode = "FlatFace"
sketch27.addGeometry(Part.Circle(App.Vector(-94, 18.7, 0), App.Vector(0, 0, 1), 1.5), False)
sketch27.addConstraint(Sketcher.Constraint("Diameter", 0, 3.0))
sketch27.addConstraint(Sketcher.Constraint("DistanceX", 0, 3, -1, 1, 94.0))
sketch27.addConstraint(Sketcher.Constraint("DistanceY", -1, 1, 0, 3, 18.7))
pocket26 = body.newObject("PartDesign::Pocket", "Pocket025")
pocket26.Profile = sketch27
pocket26.Type = "UpToFirst"

sketch28 = body.newObject("Sketcher::SketchObject", "Sketch027")
sketch28.AttachmentSupport = (doc.getObject("XZ_Plane"), [""])
sketch28.MapMode = "FlatFace"
sketch28.addGeometry(Part.Circle(App.Vector(-57.3, 18.7, 0), App.Vector(0, 0, 1), 1.5), False)
sketch28.addConstraint(Sketcher.Constraint("Diameter", 0, 3.0))
sketch28.addConstraint(Sketcher.Constraint("DistanceX", 0, 3, -1, 1, 57.3))
sketch28.addConstraint(Sketcher.Constraint("DistanceY", -1, 1, 0, 3, 18.7))
pocket27 = body.newObject("PartDesign::Pocket", "Pocket026")
pocket27.Profile = sketch28
pocket27.Type = "UpToFirst"

sketch29 = body.newObject("Sketcher::SketchObject", "Sketch028")
sketch29.AttachmentSupport = (doc.getObject("XZ_Plane"), [""])
sketch29.MapMode = "FlatFace"
sketch29.addGeometry(Part.Circle(App.Vector(-57.3, -18.7, 0), App.Vector(0, 0, 1), 1.5), False)
sketch29.addConstraint(Sketcher.Constraint("Diameter", 0, 3.0))
sketch29.addConstraint(Sketcher.Constraint("DistanceX", 0, 3, -1, 1, 57.3))
sketch29.addConstraint(Sketcher.Constraint("DistanceY", 0, 3, -1, 1, 18.7))
pocket28 = body.newObject("PartDesign::Pocket", "Pocket027")
pocket28.Profile = sketch29
pocket28.Type = "UpToFirst"

sketch30 = body.newObject("Sketcher::SketchObject", "Sketch029")
sketch30.AttachmentSupport = (doc.getObject("XZ_Plane"), [""])
sketch30.MapMode = "FlatFace"
sketch30.addGeometry(Part.Circle(App.Vector(-1.4, 95, 0), App.Vector(0, 0, 1), 1.5), False)
sketch30.addConstraint(Sketcher.Constraint("Diameter", 0, 3.0))
sketch30.addConstraint(Sketcher.Constraint("DistanceY", -1, 1, 0, 3, 95.0))
sketch30.addConstraint(Sketcher.Constraint("DistanceX", 0, 3, -1, 1, 1.4))
pocket29 = body.newObject("PartDesign::Pocket", "Pocket028")
pocket29.Profile = sketch30
pocket29.Type = "UpToFirst"

sketch31 = body.newObject("Sketcher::SketchObject", "Sketch030")
sketch31.AttachmentSupport = (doc.getObject("XZ_Plane"), [""])
sketch31.MapMode = "FlatFace"
sketch31.addGeometry(Part.Circle(App.Vector(25.4, 95, 0), App.Vector(0, 0, 1), 1.5), False)
sketch31.addConstraint(Sketcher.Constraint("Diameter", 0, 3.0))
sketch31.addConstraint(Sketcher.Constraint("DistanceY", -1, 1, 0, 3, 95.0))
sketch31.addConstraint(Sketcher.Constraint("DistanceX", -1, 1, 0, 3, 25.4))
pocket30 = body.newObject("PartDesign::Pocket", "Pocket029")
pocket30.Profile = sketch31
pocket30.Type = "UpToFirst"

sketch32 = body.newObject("Sketcher::SketchObject", "Sketch031")
sketch32.AttachmentSupport = (doc.getObject("XZ_Plane"), [""])
sketch32.MapMode = "FlatFace"
sketch32.addGeometry(Part.Circle(App.Vector(25.4, 36.2, 0), App.Vector(0, 0, 1), 1.5), False)
sketch32.addConstraint(Sketcher.Constraint("Diameter", 0, 3.0))
sketch32.addConstraint(Sketcher.Constraint("DistanceX", -1, 1, 0, 3, 25.4))
sketch32.addConstraint(Sketcher.Constraint("DistanceY", -1, 1, 0, 3, 36.2))
pocket31 = body.newObject("PartDesign::Pocket", "Pocket030")
pocket31.Profile = sketch32
pocket31.Type = "UpToFirst"

sketch33 = body.newObject("Sketcher::SketchObject", "Sketch032")
sketch33.AttachmentSupport = (doc.getObject("XZ_Plane"), [""])
sketch33.MapMode = "FlatFace"
sketch33.addGeometry(Part.Circle(App.Vector(-1.4, 36.2, 0), App.Vector(0, 0, 1), 1.5), False)
sketch33.addConstraint(Sketcher.Constraint("Diameter", 0, 3.0))
sketch33.addConstraint(Sketcher.Constraint("DistanceX", 0, 3, -1, 1, 1.4))
sketch33.addConstraint(Sketcher.Constraint("DistanceY", -1, 1, 0, 3, 36.2))
pocket32 = body.newObject("PartDesign::Pocket", "Pocket031")
pocket32.Profile = sketch33
pocket32.Type = "UpToFirst"

sketch34 = body.newObject("Sketcher::SketchObject", "Sketch033")
sketch34.AttachmentSupport = (doc.getObject("XZ_Plane"), [""])
sketch34.MapMode = "FlatFace"
sketch34.AttachmentOffset = App.Placement(App.Vector(0, 0, -3), App.Rotation())
sketch34.addGeometry(Part.Circle(App.Vector(63.888834, -91.851002, 0), App.Vector(0, 0, 1), 1.4605), False)
sketch34.addConstraint(Sketcher.Constraint("Diameter", 0, 2.921))
sketch34.addConstraint(Sketcher.Constraint("DistanceX", -1, 1, 0, 3, 63.888834))
sketch34.addConstraint(Sketcher.Constraint("DistanceY", 0, 3, -1, 1, 91.851002))
pocket33 = body.newObject("PartDesign::Pocket", "Pocket032")
pocket33.Profile = sketch34
pocket33.Type = "UpToFirst"
pocket33.Reversed = True

sketch35 = body.newObject("Sketcher::SketchObject", "Sketch034")
sketch35.AttachmentSupport = (doc.getObject("XZ_Plane"), [""])
sketch35.MapMode = "FlatFace"
sketch35.AttachmentOffset = App.Placement(App.Vector(0, 0, -3), App.Rotation())
sketch35.addGeometry(Part.Circle(App.Vector(47.366092, -60.851173, 0), App.Vector(0, 0, 1), 1.4605), False)
sketch35.addConstraint(Sketcher.Constraint("Diameter", 0, 2.921))
sketch35.addConstraint(Sketcher.Constraint("DistanceX", -1, 1, 0, 3, 47.366092))
sketch35.addConstraint(Sketcher.Constraint("DistanceY", 0, 3, -1, 1, 60.851173))
pocket34 = body.newObject("PartDesign::Pocket", "Pocket033")
pocket34.Profile = sketch35
pocket34.Type = "UpToFirst"
pocket34.Reversed = True

sketch36 = body.newObject("Sketcher::SketchObject", "Sketch035")
sketch36.AttachmentSupport = (doc.getObject("XZ_Plane"), [""])
sketch36.MapMode = "FlatFace"
sketch36.AttachmentOffset = App.Placement(App.Vector(0, 0, -3), App.Rotation())
sketch36.addGeometry(Part.Circle(App.Vector(34.96282, -91.851002, 0), App.Vector(0, 0, 1), 1.4605), False)
sketch36.addConstraint(Sketcher.Constraint("Diameter", 0, 2.921))
sketch36.addConstraint(Sketcher.Constraint("DistanceX", -1, 1, 0, 3, 34.96282))
sketch36.addConstraint(Sketcher.Constraint("DistanceY", 0, 3, -1, 1, 91.851002))
pocket35 = body.newObject("PartDesign::Pocket", "Pocket034")
pocket35.Profile = sketch36
pocket35.Type = "UpToFirst"
pocket35.Reversed = True

sketch37 = body.newObject("Sketcher::SketchObject", "Sketch036")
sketch37.AttachmentSupport = (doc.getObject("XZ_Plane"), [""])
sketch37.MapMode = "FlatFace"
sketch37.AttachmentOffset = App.Placement(App.Vector(0, 0, -3), App.Rotation())
sketch37.addGeometry(Part.Circle(App.Vector(18.440078, -60.851173, 0), App.Vector(0, 0, 1), 1.4605), False)
sketch37.addConstraint(Sketcher.Constraint("Diameter", 0, 2.921))
sketch37.addConstraint(Sketcher.Constraint("DistanceX", -1, 1, 0, 3, 18.440078))
sketch37.addConstraint(Sketcher.Constraint("DistanceY", 0, 3, -1, 1, 60.851173))
pocket36 = body.newObject("PartDesign::Pocket", "Pocket035")
pocket36.Profile = sketch37
pocket36.Type = "UpToFirst"
pocket36.Reversed = True

sketch38 = body.newObject("Sketcher::SketchObject", "Sketch037")
sketch38.AttachmentSupport = (doc.getObject("XZ_Plane"), [""])
sketch38.MapMode = "FlatFace"
sketch38.AttachmentOffset = App.Placement(App.Vector(0, 0, -3), App.Rotation())
sketch38.addGeometry(Part.Circle(App.Vector(80.5, -79.613249, 0), App.Vector(0, 0, 1), 1.5), False)
sketch38.addConstraint(Sketcher.Constraint("Diameter", 0, 3.0))
sketch38.addConstraint(Sketcher.Constraint("DistanceX", -1, 1, 0, 3, 80.5))
sketch38.addConstraint(Sketcher.Constraint("DistanceY", 0, 3, -1, 1, 79.613249))
pocket37 = body.newObject("PartDesign::Pocket", "Pocket036")
pocket37.Profile = sketch38
pocket37.Type = "UpToFirst"
pocket37.Reversed = True

sketch39 = body.newObject("Sketcher::SketchObject", "Sketch038")
sketch39.AttachmentSupport = (doc.getObject("XZ_Plane"), [""])
sketch39.MapMode = "FlatFace"
sketch39.AttachmentOffset = App.Placement(App.Vector(0, 0, -3), App.Rotation())
sketch39.addGeometry(Part.LineSegment(App.Vector(-22.2, -100, 0), App.Vector(-22.2, -97, 0)), False)
sketch39.addGeometry(Part.LineSegment(App.Vector(-22.2, -97, 0), App.Vector(-7.8, -97, 0)), False)
sketch39.addGeometry(Part.LineSegment(App.Vector(-7.8, -97, 0), App.Vector(-7.8, -100, 0)), False)
sketch39.addGeometry(Part.LineSegment(App.Vector(-7.8, -100, 0), App.Vector(-22.2, -100, 0)), False)
sketch39.addConstraint(Sketcher.Constraint("Coincident", 0, 2, 1, 1))
sketch39.addConstraint(Sketcher.Constraint("Coincident", 1, 2, 2, 1))
sketch39.addConstraint(Sketcher.Constraint("Coincident", 2, 2, 3, 1))
sketch39.addConstraint(Sketcher.Constraint("Coincident", 3, 2, 0, 1))
sketch39.addConstraint(Sketcher.Constraint("Vertical", 0))
sketch39.addConstraint(Sketcher.Constraint("Horizontal", 1))
sketch39.addConstraint(Sketcher.Constraint("Vertical", 2))
sketch39.addConstraint(Sketcher.Constraint("Horizontal", 3))
sketch39.addConstraint(Sketcher.Constraint("DistanceY", 0, 1, 0, 2, 3.0))
sketch39.addConstraint(Sketcher.Constraint("DistanceX", 1, 1, 1, 2, 14.4))
sketch39.addConstraint(Sketcher.Constraint("DistanceY", 0, 2, -1, 1, 97.0))
sketch39.addConstraint(Sketcher.Constraint("DistanceX", 0, 2, -1, 1, 22.2))
pocket38 = body.newObject("PartDesign::Pocket", "Pocket037")
pocket38.Profile = sketch39
pocket38.Type = "UpToFirst"
pocket38.Reversed = True

doc.recompute()
